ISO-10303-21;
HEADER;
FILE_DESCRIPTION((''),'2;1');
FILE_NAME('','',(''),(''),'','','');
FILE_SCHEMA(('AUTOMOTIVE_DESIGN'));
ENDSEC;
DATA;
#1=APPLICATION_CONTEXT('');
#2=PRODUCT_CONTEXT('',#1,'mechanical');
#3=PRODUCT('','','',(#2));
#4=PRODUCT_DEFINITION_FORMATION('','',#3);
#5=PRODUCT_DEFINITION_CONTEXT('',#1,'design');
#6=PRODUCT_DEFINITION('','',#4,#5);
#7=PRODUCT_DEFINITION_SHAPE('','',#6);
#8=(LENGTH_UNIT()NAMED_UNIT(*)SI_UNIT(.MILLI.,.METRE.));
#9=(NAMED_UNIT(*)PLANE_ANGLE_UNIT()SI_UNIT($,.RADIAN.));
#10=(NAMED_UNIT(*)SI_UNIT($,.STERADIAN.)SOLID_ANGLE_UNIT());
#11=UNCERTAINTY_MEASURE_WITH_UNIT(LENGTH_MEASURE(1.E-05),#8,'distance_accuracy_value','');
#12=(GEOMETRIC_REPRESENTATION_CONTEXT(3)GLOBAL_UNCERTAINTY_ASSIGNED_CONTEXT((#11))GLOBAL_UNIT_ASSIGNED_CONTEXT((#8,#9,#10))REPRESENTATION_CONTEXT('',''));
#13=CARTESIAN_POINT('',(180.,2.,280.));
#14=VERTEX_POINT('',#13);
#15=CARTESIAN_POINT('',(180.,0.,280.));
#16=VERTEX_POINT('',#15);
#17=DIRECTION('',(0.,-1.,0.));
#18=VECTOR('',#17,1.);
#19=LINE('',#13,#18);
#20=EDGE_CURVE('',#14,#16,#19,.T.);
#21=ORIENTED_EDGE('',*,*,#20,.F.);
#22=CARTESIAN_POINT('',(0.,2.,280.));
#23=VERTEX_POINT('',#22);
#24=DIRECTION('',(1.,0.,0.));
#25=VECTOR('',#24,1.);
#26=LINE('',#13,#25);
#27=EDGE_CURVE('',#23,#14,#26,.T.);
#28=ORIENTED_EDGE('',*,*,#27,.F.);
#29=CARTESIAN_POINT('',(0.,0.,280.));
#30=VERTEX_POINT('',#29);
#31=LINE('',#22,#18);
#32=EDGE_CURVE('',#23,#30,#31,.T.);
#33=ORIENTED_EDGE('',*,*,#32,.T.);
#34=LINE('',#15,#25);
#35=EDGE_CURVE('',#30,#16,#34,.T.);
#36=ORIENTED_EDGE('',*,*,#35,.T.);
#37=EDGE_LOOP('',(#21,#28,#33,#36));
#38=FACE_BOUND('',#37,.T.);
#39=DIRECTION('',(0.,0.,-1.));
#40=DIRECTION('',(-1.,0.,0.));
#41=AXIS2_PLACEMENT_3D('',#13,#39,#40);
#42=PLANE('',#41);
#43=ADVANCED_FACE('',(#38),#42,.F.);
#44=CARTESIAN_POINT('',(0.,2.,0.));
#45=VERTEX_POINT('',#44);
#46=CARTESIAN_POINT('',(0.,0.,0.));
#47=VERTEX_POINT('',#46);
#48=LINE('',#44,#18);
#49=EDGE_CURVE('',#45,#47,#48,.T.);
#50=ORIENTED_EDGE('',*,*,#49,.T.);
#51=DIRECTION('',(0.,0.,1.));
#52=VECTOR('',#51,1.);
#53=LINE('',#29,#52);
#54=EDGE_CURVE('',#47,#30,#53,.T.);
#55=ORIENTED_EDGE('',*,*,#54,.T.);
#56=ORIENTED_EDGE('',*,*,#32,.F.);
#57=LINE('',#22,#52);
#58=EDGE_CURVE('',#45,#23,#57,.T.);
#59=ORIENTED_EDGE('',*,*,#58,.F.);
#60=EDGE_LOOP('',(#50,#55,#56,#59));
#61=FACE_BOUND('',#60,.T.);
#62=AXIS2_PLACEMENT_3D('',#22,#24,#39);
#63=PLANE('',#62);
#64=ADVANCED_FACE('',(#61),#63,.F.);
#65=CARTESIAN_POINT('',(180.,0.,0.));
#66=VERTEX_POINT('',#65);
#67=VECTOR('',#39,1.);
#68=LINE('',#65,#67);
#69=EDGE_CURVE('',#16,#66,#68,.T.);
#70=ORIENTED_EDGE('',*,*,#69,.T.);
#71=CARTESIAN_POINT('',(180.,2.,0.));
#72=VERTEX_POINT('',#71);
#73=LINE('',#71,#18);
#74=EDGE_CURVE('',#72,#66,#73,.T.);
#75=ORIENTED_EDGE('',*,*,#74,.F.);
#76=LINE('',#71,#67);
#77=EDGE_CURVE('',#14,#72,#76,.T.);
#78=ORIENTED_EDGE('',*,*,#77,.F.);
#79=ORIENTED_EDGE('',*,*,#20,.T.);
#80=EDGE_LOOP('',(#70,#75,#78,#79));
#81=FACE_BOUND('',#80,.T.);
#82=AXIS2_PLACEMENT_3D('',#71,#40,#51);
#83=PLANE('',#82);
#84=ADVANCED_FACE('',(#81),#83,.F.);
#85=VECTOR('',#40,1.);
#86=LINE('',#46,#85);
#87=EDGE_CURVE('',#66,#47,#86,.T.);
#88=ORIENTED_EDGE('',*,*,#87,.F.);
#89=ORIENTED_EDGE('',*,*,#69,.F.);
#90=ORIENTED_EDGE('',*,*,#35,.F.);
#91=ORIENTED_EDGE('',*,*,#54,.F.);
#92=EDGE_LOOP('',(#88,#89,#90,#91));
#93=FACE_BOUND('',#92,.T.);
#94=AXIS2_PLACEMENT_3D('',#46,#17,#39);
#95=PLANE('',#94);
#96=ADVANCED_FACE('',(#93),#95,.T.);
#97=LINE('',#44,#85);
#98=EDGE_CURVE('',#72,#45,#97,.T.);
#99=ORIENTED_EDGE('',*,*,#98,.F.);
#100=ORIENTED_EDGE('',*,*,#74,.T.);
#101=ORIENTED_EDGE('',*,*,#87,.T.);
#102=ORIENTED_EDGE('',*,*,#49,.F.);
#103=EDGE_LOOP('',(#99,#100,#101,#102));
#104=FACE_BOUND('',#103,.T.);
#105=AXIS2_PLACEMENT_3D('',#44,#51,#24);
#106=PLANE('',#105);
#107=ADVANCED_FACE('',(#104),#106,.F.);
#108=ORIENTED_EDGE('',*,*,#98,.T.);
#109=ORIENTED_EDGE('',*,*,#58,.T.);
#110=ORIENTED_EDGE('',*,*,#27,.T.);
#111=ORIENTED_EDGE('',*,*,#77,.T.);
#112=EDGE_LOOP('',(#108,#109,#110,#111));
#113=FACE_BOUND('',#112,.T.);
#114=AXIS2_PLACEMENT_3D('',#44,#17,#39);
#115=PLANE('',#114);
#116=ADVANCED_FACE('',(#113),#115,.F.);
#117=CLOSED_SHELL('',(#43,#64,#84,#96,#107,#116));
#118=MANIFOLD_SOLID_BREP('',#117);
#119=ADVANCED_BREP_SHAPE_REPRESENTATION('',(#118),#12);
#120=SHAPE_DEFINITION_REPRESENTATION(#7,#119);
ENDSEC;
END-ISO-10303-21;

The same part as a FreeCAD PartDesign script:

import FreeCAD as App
import Part
import Sketcher
Q = App.Units.Quantity


def add_polygon(sketch, points):
    """Adds a closed chain of lines whose ends are joined by coincident constraints."""
    first, n = sketch.GeometryCount, len(points)
    for a, b in zip(points, points[1:] + points[:1]):
        sketch.addGeometry(Part.LineSegment(App.Vector(*a, 0), App.Vector(*b, 0)), False)
    for i in range(n):
        sketch.addConstraint(Sketcher.Constraint("Coincident", first + i, 2, first + (i + 1) % n, 1))

doc = App.newDocument("Part")
params = doc.addObject("Spreadsheet::Sheet", "Params")
for row, (alias, value) in enumerate([
    ("sketch1_width", "180 mm"),
    ("sketch1_height", "280 mm"),
    ("pad1_length", "2 mm"),
], start=1):
    params.set(f"A{row}", alias)
    params.set(f"B{row}", "=" + value)
    params.setAlias(f"B{row}", alias)

body = doc.addObject("PartDesign::Body", "Body")

# Sketch on XZ plane
sketch1 = doc.addObject("Sketcher::SketchObject", "Sketch")
body.addObject(sketch1)
sketch1.AttachmentSupport = (doc.XZ_Plane, [""])
sketch1.MapMode = "FlatFace"
add_polygon(sketch1, [(0, 0), (0, 280), (180, 280), (180, 0)])  # lines 0-3
sketch1.addConstraint(Sketcher.Constraint("Vertical", 0))
sketch1.addConstraint(Sketcher.Constraint("Horizontal", 1))
sketch1.addConstraint(Sketcher.Constraint("Vertical", 2))
sketch1.addConstraint(Sketcher.Constraint("Horizontal", 3))
sketch1.addConstraint(Sketcher.Constraint("Coincident", 3, 2, -1, 1))
sketch1.addConstraint(Sketcher.Constraint("DistanceX", 1, 1, 1, 2, Q("180 mm")))
sketch1.addConstraint(Sketcher.Constraint("DistanceY", 0, 1, 0, 2, Q("280 mm")))
sketch1.setExpression("Constraints[9]", "Params.sketch1_width")
sketch1.setExpression("Constraints[10]", "Params.sketch1_height")
pad1 = doc.addObject("PartDesign::Pad", "Pad")
body.addObject(pad1)
pad1.Profile = sketch1
pad1.setExpression("Length", "Params.pad1_length")
pad1.Reversed = True

doc.recompute()
